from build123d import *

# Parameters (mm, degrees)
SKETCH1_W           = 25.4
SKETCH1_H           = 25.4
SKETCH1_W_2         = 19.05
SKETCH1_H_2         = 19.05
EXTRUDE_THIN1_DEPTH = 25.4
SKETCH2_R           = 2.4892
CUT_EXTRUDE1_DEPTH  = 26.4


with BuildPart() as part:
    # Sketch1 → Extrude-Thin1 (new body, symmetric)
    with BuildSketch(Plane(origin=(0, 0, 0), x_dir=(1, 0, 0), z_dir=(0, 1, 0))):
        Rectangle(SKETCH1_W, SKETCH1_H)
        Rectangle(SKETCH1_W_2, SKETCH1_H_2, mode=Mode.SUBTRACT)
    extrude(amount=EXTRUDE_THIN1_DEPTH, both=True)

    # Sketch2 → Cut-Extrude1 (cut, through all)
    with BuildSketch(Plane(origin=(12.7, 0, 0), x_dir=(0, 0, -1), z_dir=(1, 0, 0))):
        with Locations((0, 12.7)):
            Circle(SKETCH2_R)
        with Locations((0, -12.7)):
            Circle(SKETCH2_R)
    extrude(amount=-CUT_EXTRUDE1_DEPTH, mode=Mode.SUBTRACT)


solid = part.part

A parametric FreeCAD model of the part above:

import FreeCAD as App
import Part
import Sketcher
from FreeCAD import Vector
Q = App.Units.Quantity


def add_polygon(sketch, points):
    """Adds a closed chain of lines whose ends are joined by coincident constraints."""
    first, n = sketch.GeometryCount, len(points)
    for a, b in zip(points, points[1:] + points[:1]):
        sketch.addGeometry(Part.LineSegment(App.Vector(*a, 0), App.Vector(*b, 0)), False)
    for i in range(n):
        sketch.addConstraint(Sketcher.Constraint("Coincident", first + i, 2, first + (i + 1) % n, 1))

doc = App.newDocument("Part")
params = doc.addObject("Spreadsheet::Sheet", "Params")
for row, (alias, value) in enumerate([
    ("sketch1_width", "1 in"),
    ("sketch1_width2", "0.75 in"),
    ("pad1_length", "2 in"),
    ("sketch2_diameter", "0.196 in"),
], start=1):
    params.set(f"A{row}", alias)
    params.set(f"B{row}", "=" + value)
    params.setAlias(f"B{row}", alias)

body = doc.addObject("PartDesign::Body", "Body")

# Sketch on XZ plane
sketch1 = doc.addObject("Sketcher::SketchObject", "Sketch")
body.addObject(sketch1)
sketch1.AttachmentSupport = (doc.XZ_Plane, [""])
sketch1.MapMode = "FlatFace"
add_polygon(sketch1, [(-12.7, -12.7), (-12.7, 12.7), (12.7, 12.7), (12.7, -12.7)])  # lines 0-3
add_polygon(sketch1, [(9.525, 9.525), (-9.525, 9.525), (-9.525, -9.525), (9.525, -9.525)])  # lines 4-7
sketch1.addConstraint([
    Sketcher.Constraint("Vertical", 0),
    Sketcher.Constraint("Horizontal", 1),
    Sketcher.Constraint("Vertical", 2),
    Sketcher.Constraint("Horizontal", 3),
    Sketcher.Constraint("Horizontal", 4),
    Sketcher.Constraint("Vertical", 5),
    Sketcher.Constraint("Horizontal", 6),
    Sketcher.Constraint("Vertical", 7),
    Sketcher.Constraint("Symmetric", 0, 2, 2, 2, -1, 1),
    Sketcher.Constraint("Symmetric", 4, 2, 6, 2, -1, 1),
    Sketcher.Constraint("Equal", 3, 0),
    Sketcher.Constraint("Equal", 6, 5),
    Sketcher.Constraint("DistanceX", 1, 1, 1, 2, Q("1 in")),
    Sketcher.Constraint("DistanceX", 4, 2, 4, 1, Q("0.75 in")),
])
sketch1.setExpression("Constraints[20]", "Params.sketch1_width")
sketch1.setExpression("Constraints[21]", "Params.sketch1_width2")
pad1 = doc.addObject("PartDesign::Pad", "Pad")
body.addObject(pad1)
pad1.Profile = sketch1
pad1.setExpression("Length", "Params.pad1_length")
pad1.Midplane = True

# Sketch on YZ plane
sketch2 = doc.addObject("Sketcher::SketchObject", "Sketch001")
body.addObject(sketch2)
sketch2.AttachmentSupport = (doc.YZ_Plane, [""])
sketch2.MapMode = "FlatFace"
sketch2.AttachmentOffset = App.Placement(Vector(0, 0, 0.5 * 25.4), App.Rotation())
sketch2.addGeometry([
    Part.Circle(Vector(12.7, 0, 0), Vector(0, 0, 1), 2.4892),
    Part.Circle(Vector(-12.7, 0, 0), Vector(0, 0, 1), 2.4892),
], False)
sketch2.addConstraint([
    Sketcher.Constraint("Equal", 0, 1),
    Sketcher.Constraint("Symmetric", 0, 3, 1, 3, -1, 1),
    Sketcher.Constraint("PointOnObject", 0, 3, -1),
    Sketcher.Constraint("Diameter", 0, Q("0.196 in")),
    Sketcher.Constraint("DistanceX", 1, 3, 0, 3, Q("1 in")),
])
sketch2.setExpression("Constraints[3]", "Params.sketch2_diameter")
pocket1 = doc.addObject("PartDesign::Pocket", "Pocket")
body.addObject(pocket1)
pocket1.Profile = sketch2
pocket1.Type = "ThroughAll"

doc.recompute()
